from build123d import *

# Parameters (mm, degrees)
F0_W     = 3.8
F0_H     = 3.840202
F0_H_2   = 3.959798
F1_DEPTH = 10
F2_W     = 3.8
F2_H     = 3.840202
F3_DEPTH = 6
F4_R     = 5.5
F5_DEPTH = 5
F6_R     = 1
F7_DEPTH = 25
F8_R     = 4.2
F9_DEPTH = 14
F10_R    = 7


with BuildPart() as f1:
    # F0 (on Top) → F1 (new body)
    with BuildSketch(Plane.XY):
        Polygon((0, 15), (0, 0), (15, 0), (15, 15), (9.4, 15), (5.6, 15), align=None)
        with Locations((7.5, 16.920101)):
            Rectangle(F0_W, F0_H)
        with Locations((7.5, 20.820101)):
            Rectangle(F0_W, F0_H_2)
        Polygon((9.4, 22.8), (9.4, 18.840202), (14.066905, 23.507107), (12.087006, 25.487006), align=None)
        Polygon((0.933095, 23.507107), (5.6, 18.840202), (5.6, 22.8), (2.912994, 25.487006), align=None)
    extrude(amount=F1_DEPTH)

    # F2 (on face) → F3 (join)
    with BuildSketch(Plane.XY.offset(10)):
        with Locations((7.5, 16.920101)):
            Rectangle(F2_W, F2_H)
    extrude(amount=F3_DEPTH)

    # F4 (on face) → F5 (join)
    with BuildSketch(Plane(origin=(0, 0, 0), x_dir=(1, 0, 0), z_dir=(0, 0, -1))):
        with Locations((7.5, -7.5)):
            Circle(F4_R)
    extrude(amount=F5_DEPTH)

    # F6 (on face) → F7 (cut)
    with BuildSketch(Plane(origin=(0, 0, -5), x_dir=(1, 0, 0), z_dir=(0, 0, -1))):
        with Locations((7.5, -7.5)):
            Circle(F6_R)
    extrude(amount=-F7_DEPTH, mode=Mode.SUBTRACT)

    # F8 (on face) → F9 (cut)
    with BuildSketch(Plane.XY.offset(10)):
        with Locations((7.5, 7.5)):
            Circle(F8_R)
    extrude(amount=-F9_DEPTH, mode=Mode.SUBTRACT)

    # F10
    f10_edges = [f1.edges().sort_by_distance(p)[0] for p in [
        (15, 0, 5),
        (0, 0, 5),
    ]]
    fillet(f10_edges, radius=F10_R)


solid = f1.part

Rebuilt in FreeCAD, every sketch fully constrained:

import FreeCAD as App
import Part
import Sketcher

V = App.Vector


def edges_at(feature, points):
    """Names of the edges that pass closest to the given points."""
    edges = feature.Shape.Edges
    near = lambda p: min(range(len(edges)), key=lambda i: edges[i].distToShape(Part.Vertex(*p))[0])
    return sorted({f"Edge{near(p) + 1}" for p in points})


def add_polygon(sketch, points):
    """Adds a closed chain of lines whose ends are joined by coincident constraints."""
    first, n = sketch.GeometryCount, len(points)
    for a, b in zip(points, points[1:] + points[:1]):
        sketch.addGeometry(Part.LineSegment(App.Vector(*a, 0), App.Vector(*b, 0)), False)
    for i in range(n):
        sketch.addConstraint(Sketcher.Constraint("Coincident", first + i, 2, first + (i + 1) % n, 1))

doc = App.newDocument("Part")
body = doc.addObject("PartDesign::Body", "Body")

# Sketch on XY plane
sketch1 = doc.addObject("Sketcher::SketchObject", "Sketch")
body.addObject(sketch1)
sketch1.AttachmentSupport = (doc.XY_Plane, [""])
sketch1.MapMode = "FlatFace"
add_polygon(sketch1, [(0, 15), (0, 0), (15, 0), (15, 15), (9.4, 15), (9.4, 18.8), (14.1, 23.5), (12.1, 25.5), (9.4, 22.8), (5.6, 22.8), (2.9, 25.5), (0.9, 23.5), (5.6, 18.8), (5.6, 15)])  # lines 0-13
sketch1.addConstraint([
    Sketcher.Constraint("Vertical", 0),
    Sketcher.Constraint("Horizontal", 1),
    Sketcher.Constraint("Vertical", 2),
    Sketcher.Constraint("Horizontal", 3),
    Sketcher.Constraint("Vertical", 4),
    Sketcher.Constraint("Horizontal", 8),
    Sketcher.Constraint("Vertical", 12),
    Sketcher.Constraint("Horizontal", 13),
    Sketcher.Constraint("Coincident", 0, 2, -1, 1),
    Sketcher.Constraint("Perpendicular", 5, 6),
    Sketcher.Constraint("Perpendicular", 6, 7),
    Sketcher.Constraint("Perpendicular", 7, 9),
    Sketcher.Constraint("Perpendicular", 9, 10),
    Sketcher.Constraint("Perpendicular", 10, 11),
    Sketcher.Constraint("Horizontal", 6, 2, 9, 2),
    Sketcher.Constraint("Horizontal", 5, 2, 10, 2),
    Sketcher.Constraint("Horizontal", 4, 2, 11, 2),
    Sketcher.Constraint("Horizontal", 3, 2, 12, 2),
    Sketcher.Constraint("Vertical", 4, 2, 7, 2),
    Sketcher.Constraint("Vertical", 8, 2, 11, 2),
    Sketcher.Constraint("Equal", 3, 13),
    Sketcher.Constraint("Equal", 1, 0),
    Sketcher.Constraint("DistanceX", 1, 1, 1, 2, 15.0),
    Sketcher.Constraint("DistanceX", 3, 2, 3, 1, 5.6),
    Sketcher.Constraint("Distance", 5, 6.6),
    Sketcher.Constraint("Distance", 6, 2.8),
    Sketcher.Constraint("DistanceY", -1, 1, 7, 2, 22.8),
])
pad1 = doc.addObject("PartDesign::Pad", "Pad")
body.addObject(pad1)
pad1.Profile = sketch1
pad1.Length = 10

# Sketch on XY plane
sketch2 = doc.addObject("Sketcher::SketchObject", "Sketch001")
body.addObject(sketch2)
sketch2.AttachmentSupport = (doc.XY_Plane, [""])
sketch2.MapMode = "FlatFace"
sketch2.AttachmentOffset = App.Placement(V(0, 0, 10), App.Rotation())
add_polygon(sketch2, [(5.6, 18.8), (5.6, 15), (9.4, 15), (9.4, 18.8)])  # lines 0-3
sketch2.addConstraint([
    Sketcher.Constraint("Vertical", 0),
    Sketcher.Constraint("Horizontal", 1),
    Sketcher.Constraint("Vertical", 2),
    Sketcher.Constraint("Horizontal", 3),
    Sketcher.Constraint("DistanceX", 1, 1, 1, 2, 3.8),
    Sketcher.Constraint("DistanceY", -1, 1, 0, 2, 15.0),
    Sketcher.Constraint("DistanceX", -1, 1, 0, 2, 5.6),
    Sketcher.Constraint("DistanceY", 0, 2, 0, 1, 3.840202),
])
pad2 = doc.addObject("PartDesign::Pad", "Pad001")
body.addObject(pad2)
pad2.Profile = sketch2
pad2.Length = 6

# Sketch on XY plane
sketch3 = doc.addObject("Sketcher::SketchObject", "Sketch002")
body.addObject(sketch3)
sketch3.AttachmentSupport = (doc.XY_Plane, [""])
sketch3.MapMode = "FlatFace"
sketch3.addGeometry(Part.Circle(V(8, 8, 0), V(0, 0, 1), 6), False)
sketch3.addConstraint([
    Sketcher.Constraint("Diameter", 0, 11.0),
    Sketcher.Constraint("DistanceX", -1, 1, 0, 3, 7.5),
    Sketcher.Constraint("DistanceY", -1, 1, 0, 3, 7.5),
])
pad3 = doc.addObject("PartDesign::Pad", "Pad002")
body.addObject(pad3)
pad3.Profile = sketch3
pad3.Length = 5
pad3.Reversed = True

# Sketch on XY plane
sketch4 = doc.addObject("Sketcher::SketchObject", "Sketch003")
body.addObject(sketch4)
sketch4.AttachmentSupport = (doc.XY_Plane, [""])
sketch4.MapMode = "FlatFace"
sketch4.AttachmentOffset = App.Placement(V(0, 0, -5), App.Rotation())
sketch4.addGeometry(Part.Circle(V(7.5, 7.5, 0), V(0, 0, 1), 1), False)
sketch4.addConstraint([
    Sketcher.Constraint("Diameter", 0, 2.0),
    Sketcher.Constraint("DistanceX", -1, 1, 0, 3, 7.5),
    Sketcher.Constraint("DistanceY", -1, 1, 0, 3, 7.5),
])
pocket1 = doc.addObject("PartDesign::Pocket", "Pocket")
body.addObject(pocket1)
pocket1.Profile = sketch4
pocket1.Length = 25
pocket1.Reversed = True

# Sketch on XY plane
sketch5 = doc.addObject("Sketcher::SketchObject", "Sketch004")
body.addObject(sketch5)
sketch5.AttachmentSupport = (doc.XY_Plane, [""])
sketch5.MapMode = "FlatFace"
sketch5.AttachmentOffset = App.Placement(V(0, 0, 10), App.Rotation())
sketch5.addGeometry(Part.Circle(V(7.5, 7.5, 0), V(0, 0, 1), 4.2), False)
sketch5.addConstraint([
    Sketcher.Constraint("Diameter", 0, 8.4),
    Sketcher.Constraint("DistanceX", -1, 1, 0, 3, 7.5),
    Sketcher.Constraint("DistanceY", -1, 1, 0, 3, 7.5),
])
pocket2 = doc.addObject("PartDesign::Pocket", "Pocket001")
body.addObject(pocket2)
pocket2.Profile = sketch5
pocket2.Length = 14
doc.recompute()

fillet = doc.addObject("PartDesign::Fillet", "Fillet")
body.addObject(fillet)
fillet.Base = (pocket2, edges_at(pocket2, [(15, 0, 5), (0, 0, 5)]))
fillet.Radius = 7

doc.recompute()
